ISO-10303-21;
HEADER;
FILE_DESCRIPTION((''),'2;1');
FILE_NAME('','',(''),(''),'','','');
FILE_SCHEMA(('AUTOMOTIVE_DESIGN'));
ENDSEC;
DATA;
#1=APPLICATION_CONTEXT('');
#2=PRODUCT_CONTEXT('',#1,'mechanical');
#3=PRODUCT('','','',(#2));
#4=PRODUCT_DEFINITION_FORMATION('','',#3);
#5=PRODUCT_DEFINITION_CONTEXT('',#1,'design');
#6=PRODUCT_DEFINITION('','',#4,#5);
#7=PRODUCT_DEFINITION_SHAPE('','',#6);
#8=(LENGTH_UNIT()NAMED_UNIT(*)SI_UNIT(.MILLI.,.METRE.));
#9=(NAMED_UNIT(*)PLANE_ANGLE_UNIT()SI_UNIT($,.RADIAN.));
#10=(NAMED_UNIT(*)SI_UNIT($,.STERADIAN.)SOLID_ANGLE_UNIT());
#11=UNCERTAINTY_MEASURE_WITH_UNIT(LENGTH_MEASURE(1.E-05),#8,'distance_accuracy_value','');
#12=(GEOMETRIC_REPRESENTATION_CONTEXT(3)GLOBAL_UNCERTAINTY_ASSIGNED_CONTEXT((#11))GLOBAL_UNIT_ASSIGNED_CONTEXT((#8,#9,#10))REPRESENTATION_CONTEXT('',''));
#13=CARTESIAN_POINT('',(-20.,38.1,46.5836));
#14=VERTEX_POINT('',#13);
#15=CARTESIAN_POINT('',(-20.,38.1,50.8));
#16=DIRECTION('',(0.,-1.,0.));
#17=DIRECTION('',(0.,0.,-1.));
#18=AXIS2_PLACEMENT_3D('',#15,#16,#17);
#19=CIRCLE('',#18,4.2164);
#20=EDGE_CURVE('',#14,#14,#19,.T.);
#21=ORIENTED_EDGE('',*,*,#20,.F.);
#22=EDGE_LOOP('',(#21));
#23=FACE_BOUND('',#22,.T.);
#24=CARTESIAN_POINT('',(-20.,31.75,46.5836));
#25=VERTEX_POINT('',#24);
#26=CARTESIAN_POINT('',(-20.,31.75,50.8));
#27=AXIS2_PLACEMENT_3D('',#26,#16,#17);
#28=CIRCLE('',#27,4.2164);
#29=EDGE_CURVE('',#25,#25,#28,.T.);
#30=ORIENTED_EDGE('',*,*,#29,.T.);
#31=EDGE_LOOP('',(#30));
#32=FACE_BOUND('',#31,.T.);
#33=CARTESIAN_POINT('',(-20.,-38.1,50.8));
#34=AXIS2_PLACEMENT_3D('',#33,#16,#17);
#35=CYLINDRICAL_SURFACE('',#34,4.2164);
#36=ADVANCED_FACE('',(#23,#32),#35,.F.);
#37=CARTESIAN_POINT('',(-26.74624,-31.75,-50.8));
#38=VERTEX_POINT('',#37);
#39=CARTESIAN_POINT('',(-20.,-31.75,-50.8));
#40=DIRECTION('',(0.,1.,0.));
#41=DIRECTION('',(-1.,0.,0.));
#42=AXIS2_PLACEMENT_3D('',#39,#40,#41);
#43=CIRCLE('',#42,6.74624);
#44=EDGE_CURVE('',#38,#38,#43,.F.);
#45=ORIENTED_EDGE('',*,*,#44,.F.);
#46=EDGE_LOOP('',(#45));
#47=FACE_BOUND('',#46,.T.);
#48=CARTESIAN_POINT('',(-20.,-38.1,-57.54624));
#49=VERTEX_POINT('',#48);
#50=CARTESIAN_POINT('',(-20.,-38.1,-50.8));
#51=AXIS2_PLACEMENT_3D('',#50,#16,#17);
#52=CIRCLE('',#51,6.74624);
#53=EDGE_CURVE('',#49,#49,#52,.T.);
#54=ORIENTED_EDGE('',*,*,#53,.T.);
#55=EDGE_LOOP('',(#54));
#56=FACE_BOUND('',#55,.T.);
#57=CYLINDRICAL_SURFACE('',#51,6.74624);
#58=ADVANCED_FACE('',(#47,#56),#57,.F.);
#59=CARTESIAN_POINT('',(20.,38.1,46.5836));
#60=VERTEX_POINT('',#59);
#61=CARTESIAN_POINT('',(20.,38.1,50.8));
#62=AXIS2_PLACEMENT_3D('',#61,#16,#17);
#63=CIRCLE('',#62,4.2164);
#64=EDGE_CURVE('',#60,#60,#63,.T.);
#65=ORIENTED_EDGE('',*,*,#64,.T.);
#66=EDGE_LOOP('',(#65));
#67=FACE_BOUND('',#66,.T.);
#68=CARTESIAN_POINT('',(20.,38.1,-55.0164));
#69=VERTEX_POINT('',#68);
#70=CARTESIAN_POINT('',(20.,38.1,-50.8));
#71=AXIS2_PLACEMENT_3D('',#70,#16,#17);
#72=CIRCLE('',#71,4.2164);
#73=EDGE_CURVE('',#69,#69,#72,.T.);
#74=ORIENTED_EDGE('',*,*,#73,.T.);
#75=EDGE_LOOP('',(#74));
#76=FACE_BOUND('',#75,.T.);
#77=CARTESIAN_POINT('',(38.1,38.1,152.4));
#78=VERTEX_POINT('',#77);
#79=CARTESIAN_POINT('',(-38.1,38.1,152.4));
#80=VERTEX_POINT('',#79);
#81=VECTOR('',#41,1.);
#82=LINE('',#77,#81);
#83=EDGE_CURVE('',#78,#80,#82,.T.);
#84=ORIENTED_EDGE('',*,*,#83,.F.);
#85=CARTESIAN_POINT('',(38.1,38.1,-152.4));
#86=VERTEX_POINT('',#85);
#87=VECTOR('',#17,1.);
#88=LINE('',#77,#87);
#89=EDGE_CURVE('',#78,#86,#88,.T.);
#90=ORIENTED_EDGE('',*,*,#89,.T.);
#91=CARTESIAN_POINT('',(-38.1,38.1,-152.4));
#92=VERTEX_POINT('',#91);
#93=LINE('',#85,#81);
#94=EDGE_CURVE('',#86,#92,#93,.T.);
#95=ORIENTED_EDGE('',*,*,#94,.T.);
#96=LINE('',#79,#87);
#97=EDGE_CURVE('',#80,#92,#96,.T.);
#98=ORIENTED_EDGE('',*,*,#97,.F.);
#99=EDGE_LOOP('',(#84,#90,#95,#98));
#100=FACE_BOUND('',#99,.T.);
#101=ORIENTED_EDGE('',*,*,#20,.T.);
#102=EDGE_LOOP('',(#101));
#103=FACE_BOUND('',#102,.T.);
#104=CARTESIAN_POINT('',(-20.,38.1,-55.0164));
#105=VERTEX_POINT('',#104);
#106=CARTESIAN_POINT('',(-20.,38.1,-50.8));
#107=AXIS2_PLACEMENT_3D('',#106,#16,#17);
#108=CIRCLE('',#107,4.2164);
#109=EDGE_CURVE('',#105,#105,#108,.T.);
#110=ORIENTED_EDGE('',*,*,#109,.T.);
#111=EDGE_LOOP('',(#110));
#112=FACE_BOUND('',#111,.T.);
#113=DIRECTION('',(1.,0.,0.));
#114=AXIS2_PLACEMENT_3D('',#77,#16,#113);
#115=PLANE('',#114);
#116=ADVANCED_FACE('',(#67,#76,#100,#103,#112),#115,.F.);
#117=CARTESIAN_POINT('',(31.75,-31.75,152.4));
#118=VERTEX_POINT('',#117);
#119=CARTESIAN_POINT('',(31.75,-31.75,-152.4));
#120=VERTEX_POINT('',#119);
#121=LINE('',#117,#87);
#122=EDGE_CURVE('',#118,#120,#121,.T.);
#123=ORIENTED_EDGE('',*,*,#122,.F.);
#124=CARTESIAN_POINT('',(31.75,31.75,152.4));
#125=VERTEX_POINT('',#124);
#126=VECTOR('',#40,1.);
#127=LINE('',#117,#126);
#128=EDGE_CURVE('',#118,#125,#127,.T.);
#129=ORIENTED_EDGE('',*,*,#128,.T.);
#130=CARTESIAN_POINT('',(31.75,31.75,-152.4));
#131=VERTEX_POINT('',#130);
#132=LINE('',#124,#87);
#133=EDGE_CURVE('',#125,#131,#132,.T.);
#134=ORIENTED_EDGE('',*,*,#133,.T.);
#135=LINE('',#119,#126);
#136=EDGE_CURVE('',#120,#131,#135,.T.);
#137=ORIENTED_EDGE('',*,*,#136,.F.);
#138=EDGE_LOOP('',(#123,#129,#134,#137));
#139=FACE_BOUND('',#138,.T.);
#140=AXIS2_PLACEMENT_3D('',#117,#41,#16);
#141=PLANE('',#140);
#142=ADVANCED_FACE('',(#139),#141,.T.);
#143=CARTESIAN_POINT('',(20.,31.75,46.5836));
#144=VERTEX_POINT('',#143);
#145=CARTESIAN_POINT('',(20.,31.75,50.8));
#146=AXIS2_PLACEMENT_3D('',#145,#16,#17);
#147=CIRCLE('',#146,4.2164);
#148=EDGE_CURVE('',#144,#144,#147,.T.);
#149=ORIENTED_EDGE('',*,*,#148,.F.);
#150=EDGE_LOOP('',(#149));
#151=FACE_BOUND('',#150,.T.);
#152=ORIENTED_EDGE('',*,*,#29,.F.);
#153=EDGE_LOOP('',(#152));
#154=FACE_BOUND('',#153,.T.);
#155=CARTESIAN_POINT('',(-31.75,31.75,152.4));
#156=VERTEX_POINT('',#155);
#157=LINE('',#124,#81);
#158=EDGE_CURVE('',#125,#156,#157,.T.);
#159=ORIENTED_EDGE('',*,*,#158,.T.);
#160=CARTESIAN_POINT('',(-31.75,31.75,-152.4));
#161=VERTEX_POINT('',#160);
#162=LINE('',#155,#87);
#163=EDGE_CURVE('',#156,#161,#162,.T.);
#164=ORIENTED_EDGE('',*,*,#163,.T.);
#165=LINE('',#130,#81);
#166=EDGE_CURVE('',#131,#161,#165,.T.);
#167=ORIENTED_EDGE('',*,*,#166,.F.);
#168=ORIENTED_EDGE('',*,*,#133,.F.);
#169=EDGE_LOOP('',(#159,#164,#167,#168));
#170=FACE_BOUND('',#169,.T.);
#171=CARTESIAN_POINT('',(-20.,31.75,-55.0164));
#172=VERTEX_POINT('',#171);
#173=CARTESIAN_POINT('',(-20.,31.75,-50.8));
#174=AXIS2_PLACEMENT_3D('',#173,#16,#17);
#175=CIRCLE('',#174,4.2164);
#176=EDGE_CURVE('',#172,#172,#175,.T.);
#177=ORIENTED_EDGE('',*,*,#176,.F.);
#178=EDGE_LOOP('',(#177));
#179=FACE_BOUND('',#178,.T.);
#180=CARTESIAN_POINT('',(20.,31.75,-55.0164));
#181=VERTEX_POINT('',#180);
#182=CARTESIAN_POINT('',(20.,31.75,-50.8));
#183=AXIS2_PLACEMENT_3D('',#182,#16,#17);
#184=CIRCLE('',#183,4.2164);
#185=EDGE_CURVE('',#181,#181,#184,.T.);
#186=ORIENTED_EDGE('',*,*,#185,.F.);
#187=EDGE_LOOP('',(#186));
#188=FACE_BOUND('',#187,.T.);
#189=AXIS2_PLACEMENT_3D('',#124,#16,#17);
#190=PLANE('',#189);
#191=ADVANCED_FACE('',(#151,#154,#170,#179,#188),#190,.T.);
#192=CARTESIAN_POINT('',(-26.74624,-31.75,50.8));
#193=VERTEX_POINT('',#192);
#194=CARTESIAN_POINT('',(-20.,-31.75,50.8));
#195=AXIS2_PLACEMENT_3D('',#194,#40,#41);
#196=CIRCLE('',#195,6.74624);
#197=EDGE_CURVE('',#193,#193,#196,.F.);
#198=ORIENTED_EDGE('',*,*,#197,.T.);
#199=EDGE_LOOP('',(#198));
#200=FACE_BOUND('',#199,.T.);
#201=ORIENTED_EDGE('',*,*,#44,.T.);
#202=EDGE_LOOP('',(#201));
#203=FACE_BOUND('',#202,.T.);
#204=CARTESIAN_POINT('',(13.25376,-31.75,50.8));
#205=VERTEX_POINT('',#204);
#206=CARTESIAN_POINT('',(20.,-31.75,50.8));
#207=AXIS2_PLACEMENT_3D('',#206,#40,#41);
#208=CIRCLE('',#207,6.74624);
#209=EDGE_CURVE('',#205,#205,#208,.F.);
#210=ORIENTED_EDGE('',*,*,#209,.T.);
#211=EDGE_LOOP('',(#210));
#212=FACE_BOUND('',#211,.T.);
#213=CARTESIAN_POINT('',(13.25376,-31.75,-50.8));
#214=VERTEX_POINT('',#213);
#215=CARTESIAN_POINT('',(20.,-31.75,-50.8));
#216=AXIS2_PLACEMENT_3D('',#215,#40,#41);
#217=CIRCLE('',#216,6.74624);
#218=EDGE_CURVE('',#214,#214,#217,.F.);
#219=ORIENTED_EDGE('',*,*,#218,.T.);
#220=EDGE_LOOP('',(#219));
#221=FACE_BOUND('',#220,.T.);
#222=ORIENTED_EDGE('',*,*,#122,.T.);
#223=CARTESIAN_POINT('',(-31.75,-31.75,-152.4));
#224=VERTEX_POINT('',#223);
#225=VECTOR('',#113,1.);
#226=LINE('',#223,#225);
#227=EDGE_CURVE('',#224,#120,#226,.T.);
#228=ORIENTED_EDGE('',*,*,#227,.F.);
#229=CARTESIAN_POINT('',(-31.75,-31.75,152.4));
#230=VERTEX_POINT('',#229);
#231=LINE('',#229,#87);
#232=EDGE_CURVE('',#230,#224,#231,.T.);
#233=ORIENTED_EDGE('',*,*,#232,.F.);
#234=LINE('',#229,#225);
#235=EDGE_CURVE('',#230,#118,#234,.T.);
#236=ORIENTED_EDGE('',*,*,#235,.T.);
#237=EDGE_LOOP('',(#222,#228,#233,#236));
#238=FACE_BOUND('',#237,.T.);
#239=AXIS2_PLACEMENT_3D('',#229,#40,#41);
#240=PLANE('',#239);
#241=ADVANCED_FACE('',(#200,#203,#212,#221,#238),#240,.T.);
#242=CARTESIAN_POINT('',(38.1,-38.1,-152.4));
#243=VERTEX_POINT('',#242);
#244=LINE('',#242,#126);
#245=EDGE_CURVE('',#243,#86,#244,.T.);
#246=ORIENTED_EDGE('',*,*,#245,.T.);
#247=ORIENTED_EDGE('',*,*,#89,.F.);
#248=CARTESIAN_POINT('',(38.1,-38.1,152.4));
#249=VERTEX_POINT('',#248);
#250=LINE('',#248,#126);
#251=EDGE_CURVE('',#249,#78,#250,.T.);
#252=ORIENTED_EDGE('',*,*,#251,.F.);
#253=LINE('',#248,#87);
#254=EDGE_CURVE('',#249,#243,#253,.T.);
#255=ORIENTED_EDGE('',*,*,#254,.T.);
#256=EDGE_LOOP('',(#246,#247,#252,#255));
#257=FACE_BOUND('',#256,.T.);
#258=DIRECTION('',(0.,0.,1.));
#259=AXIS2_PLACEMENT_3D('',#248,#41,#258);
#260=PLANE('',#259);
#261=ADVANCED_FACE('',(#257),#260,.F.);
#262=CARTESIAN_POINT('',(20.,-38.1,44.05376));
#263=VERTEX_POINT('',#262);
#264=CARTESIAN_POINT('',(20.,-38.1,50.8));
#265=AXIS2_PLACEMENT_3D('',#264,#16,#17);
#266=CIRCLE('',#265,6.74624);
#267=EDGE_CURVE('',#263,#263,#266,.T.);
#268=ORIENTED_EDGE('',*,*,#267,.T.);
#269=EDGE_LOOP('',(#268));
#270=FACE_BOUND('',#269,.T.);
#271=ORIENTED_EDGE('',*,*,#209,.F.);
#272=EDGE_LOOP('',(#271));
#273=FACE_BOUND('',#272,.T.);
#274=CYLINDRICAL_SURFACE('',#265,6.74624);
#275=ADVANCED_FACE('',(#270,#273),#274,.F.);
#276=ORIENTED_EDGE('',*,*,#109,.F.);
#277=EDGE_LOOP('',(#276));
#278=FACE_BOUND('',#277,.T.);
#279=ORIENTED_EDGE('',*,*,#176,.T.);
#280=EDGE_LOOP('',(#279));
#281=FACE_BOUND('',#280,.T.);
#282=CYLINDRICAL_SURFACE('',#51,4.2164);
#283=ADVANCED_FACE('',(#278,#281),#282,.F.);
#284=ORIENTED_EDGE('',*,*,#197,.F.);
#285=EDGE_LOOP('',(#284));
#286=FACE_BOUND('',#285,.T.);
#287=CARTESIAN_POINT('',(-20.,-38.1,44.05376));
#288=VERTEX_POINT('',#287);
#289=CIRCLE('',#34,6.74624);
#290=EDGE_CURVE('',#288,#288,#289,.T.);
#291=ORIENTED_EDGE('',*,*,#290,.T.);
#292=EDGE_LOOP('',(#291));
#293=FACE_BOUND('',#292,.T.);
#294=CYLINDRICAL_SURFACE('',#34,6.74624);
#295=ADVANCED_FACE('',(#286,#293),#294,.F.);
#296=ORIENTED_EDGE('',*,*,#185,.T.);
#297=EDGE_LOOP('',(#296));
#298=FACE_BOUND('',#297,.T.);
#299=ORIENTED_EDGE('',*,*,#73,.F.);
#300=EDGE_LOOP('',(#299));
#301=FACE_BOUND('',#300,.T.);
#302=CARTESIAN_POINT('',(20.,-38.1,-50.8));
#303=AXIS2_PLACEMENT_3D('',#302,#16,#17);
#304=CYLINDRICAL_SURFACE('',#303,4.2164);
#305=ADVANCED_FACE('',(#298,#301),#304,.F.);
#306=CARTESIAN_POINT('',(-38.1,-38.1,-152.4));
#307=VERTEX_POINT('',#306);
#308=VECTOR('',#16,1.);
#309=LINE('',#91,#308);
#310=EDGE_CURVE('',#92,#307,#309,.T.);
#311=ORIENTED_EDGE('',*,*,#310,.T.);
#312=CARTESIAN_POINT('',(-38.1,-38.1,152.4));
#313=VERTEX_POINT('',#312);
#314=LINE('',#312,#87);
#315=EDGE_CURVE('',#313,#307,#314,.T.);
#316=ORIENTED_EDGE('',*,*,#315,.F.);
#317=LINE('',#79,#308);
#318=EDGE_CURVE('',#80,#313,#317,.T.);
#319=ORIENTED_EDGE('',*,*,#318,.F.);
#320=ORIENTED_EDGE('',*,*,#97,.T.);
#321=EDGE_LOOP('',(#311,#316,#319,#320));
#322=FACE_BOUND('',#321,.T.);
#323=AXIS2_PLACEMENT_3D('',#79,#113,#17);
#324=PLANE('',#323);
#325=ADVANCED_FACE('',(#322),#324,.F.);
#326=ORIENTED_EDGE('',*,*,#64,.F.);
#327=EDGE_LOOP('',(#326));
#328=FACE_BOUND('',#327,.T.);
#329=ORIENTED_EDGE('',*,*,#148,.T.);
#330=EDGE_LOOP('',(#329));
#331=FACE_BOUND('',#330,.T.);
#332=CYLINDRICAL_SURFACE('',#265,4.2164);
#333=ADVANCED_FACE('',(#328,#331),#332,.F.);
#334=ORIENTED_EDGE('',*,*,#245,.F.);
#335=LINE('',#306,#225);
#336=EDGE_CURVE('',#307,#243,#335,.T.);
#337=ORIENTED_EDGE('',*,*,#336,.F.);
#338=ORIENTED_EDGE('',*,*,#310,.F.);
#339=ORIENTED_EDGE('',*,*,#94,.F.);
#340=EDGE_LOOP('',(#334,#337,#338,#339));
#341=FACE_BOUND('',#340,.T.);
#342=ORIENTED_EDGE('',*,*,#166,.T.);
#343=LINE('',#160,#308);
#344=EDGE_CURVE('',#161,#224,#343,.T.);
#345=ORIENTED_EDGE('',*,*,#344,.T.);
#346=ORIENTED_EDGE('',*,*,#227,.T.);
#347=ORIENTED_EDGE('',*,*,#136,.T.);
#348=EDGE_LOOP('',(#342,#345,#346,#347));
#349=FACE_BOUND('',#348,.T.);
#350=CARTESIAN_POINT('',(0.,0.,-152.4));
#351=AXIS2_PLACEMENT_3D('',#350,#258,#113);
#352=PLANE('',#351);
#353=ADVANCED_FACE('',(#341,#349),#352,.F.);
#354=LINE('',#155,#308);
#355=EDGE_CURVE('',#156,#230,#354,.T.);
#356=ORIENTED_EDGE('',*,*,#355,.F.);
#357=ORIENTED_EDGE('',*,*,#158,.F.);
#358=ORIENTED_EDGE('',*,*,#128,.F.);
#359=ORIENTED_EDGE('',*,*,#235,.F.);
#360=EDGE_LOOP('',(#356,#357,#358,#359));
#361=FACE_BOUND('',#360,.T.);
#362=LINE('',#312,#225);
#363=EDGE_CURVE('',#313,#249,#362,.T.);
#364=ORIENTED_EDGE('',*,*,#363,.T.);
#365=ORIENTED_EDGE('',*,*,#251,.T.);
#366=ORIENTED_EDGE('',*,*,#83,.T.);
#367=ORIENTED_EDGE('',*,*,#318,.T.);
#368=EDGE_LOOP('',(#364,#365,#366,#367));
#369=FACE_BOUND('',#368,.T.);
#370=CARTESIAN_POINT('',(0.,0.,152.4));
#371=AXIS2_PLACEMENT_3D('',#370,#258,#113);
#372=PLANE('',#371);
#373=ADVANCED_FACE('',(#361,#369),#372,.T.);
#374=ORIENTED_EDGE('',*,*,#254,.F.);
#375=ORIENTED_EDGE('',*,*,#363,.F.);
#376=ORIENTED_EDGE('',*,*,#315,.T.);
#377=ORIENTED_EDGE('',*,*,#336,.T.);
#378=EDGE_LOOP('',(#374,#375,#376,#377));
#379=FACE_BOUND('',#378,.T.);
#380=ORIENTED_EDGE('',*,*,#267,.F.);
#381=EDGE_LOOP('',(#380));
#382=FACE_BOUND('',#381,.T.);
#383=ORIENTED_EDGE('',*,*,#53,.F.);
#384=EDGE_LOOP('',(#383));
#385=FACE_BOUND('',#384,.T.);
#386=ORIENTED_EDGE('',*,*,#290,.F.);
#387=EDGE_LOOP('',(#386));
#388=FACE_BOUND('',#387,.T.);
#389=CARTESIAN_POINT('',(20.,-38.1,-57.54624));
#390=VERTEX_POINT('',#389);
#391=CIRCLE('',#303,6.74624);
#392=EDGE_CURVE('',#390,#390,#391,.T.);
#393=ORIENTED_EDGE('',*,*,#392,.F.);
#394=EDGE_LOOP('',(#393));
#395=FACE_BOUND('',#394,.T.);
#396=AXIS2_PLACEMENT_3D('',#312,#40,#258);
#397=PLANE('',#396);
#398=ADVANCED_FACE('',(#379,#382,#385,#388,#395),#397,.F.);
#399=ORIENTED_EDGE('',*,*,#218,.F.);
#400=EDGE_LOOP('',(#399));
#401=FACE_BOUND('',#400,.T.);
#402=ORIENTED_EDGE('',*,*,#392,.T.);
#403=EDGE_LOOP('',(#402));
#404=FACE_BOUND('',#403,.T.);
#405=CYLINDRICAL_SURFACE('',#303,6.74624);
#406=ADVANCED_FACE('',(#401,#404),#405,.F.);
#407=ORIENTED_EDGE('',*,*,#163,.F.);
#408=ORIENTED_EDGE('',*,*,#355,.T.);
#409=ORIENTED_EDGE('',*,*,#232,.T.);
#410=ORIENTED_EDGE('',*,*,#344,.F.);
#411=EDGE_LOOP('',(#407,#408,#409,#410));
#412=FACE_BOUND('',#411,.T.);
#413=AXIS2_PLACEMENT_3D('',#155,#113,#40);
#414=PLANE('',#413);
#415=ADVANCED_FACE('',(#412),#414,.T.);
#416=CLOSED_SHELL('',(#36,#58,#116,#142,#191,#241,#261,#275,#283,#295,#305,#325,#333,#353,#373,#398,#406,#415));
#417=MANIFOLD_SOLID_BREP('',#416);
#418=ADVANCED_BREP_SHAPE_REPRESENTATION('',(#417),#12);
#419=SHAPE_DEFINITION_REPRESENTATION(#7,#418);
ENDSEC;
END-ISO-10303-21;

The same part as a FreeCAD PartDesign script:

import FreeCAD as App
import Part
import Sketcher
Q = App.Units.Quantity

doc = App.newDocument("Part")
body = doc.addObject("PartDesign::Body", "Body")

# Sketch on XY plane
sketch1 = body.newObject("Sketcher::SketchObject", "Sketch")
sketch1.AttachmentSupport = (doc.getObject("XY_Plane"), [""])
sketch1.MapMode = "FlatFace"
sketch1.addGeometry([
    Part.LineSegment(App.Vector(-38, 38, 0), App.Vector(-38, -38, 0)),  # 0
    Part.LineSegment(App.Vector(-38, -38, 0), App.Vector(38, -38, 0)),  # 1
    Part.LineSegment(App.Vector(38, -38, 0), App.Vector(38, 38, 0)),  # 2
    Part.LineSegment(App.Vector(38, 38, 0), App.Vector(-38, 38, 0)),  # 3
    Part.LineSegment(App.Vector(32, -32, 0), App.Vector(-32, -32, 0)),  # 4
    Part.LineSegment(App.Vector(-32, -32, 0), App.Vector(-32, 32, 0)),  # 5
    Part.LineSegment(App.Vector(-32, 32, 0), App.Vector(32, 32, 0)),  # 6
    Part.LineSegment(App.Vector(32, 32, 0), App.Vector(32, -32, 0)),  # 7
], False)
sketch1.addConstraint([
    Sketcher.Constraint("Coincident", 0, 2, 1, 1),
    Sketcher.Constraint("Coincident", 1, 2, 2, 1),
    Sketcher.Constraint("Coincident", 2, 2, 3, 1),
    Sketcher.Constraint("Coincident", 3, 2, 0, 1),
    Sketcher.Constraint("Coincident", 4, 2, 5, 1),
    Sketcher.Constraint("Coincident", 5, 2, 6, 1),
    Sketcher.Constraint("Coincident", 6, 2, 7, 1),
    Sketcher.Constraint("Coincident", 7, 2, 4, 1),
    Sketcher.Constraint("Vertical", 0),
    Sketcher.Constraint("Horizontal", 1),
    Sketcher.Constraint("Vertical", 2),
    Sketcher.Constraint("Horizontal", 3),
    Sketcher.Constraint("Horizontal", 4),
    Sketcher.Constraint("Vertical", 5),
    Sketcher.Constraint("Horizontal", 6),
    Sketcher.Constraint("Vertical", 7),
    Sketcher.Constraint("Symmetric", 0, 2, 2, 2, -1, 1),
    Sketcher.Constraint("Symmetric", 4, 2, 6, 2, -1, 1),
    Sketcher.Constraint("Equal", 3, 0),
    Sketcher.Constraint("Equal", 6, 5),
    Sketcher.Constraint("DistanceX", 1, 1, 1, 2, Q("3 in")),
    Sketcher.Constraint("DistanceX", 4, 2, 4, 1, Q("2.5 in")),
])
pad1 = body.newObject("PartDesign::Pad", "Pad")
pad1.Profile = sketch1
pad1.Type = "TwoLengths"
pad1.Length = Q("6 in")
pad1.Length2 = Q("6 in")

# Sketch on XZ plane
sketch2 = body.newObject("Sketcher::SketchObject", "Sketch001")
sketch2.AttachmentSupport = (doc.getObject("XZ_Plane"), [""])
sketch2.MapMode = "FlatFace"
sketch2.AttachmentOffset = App.Placement(App.Vector(0, 0, 1.5 * 25.4), App.Rotation())
sketch2.addGeometry([
    Part.Circle(App.Vector(-20, -50.8, 0), App.Vector(0, 0, 1), 4.2),
    Part.Circle(App.Vector(20, 50.8, 0), App.Vector(0, 0, 1), 4.2),
    Part.Circle(App.Vector(20, -50.8, 0), App.Vector(0, 0, 1), 4.2),
    Part.Circle(App.Vector(-20, 50.8, 0), App.Vector(0, 0, 1), 4.2),
], False)
sketch2.addConstraint([
    Sketcher.Constraint("Equal", 0, 1),
    Sketcher.Constraint("Equal", 1, 2),
    Sketcher.Constraint("Equal", 2, 3),
    Sketcher.Constraint("Symmetric", 0, 3, 1, 3, -1, 1),
    Sketcher.Constraint("Symmetric", 2, 3, 3, 3, -1, 1),
    Sketcher.Constraint("Symmetric", 0, 3, 2, 3, -2),
    Sketcher.Constraint("Diameter", 0, Q("0.332 in")),
    Sketcher.Constraint("DistanceY", 0, 3, -1, 1, Q("2 in")),
    Sketcher.Constraint("DistanceX", 0, 3, -1, 1, 20.0),
])
doc.recompute()
hole = body.newObject("PartDesign::Hole", "Hole")
hole.Profile = sketch2
hole.ThreadType = "None"
hole.Diameter = Q("0.332 in")
hole.DepthType = "ThroughAll"

# Sketch on XZ plane
sketch3 = body.newObject("Sketcher::SketchObject", "Sketch002")
sketch3.AttachmentSupport = (doc.getObject("XZ_Plane"), [""])
sketch3.MapMode = "FlatFace"
sketch3.AttachmentOffset = App.Placement(App.Vector(0, 0, 1.5 * 25.4), App.Rotation())
sketch3.addGeometry([
    Part.Circle(App.Vector(20, -51, 0), App.Vector(0, 0, 1), 7),
    Part.Circle(App.Vector(-20, -51, 0), App.Vector(0, 0, 1), 7),
    Part.Circle(App.Vector(20, 51, 0), App.Vector(0, 0, 1), 7),
    Part.Circle(App.Vector(-20, 51, 0), App.Vector(0, 0, 1), 7),
], False)
sketch3.addConstraint([
    Sketcher.Constraint("Equal", 0, 1),
    Sketcher.Constraint("Equal", 1, 2),
    Sketcher.Constraint("Equal", 2, 3),
    Sketcher.Constraint("Symmetric", 1, 3, 2, 3, -1, 1),
    Sketcher.Constraint("Symmetric", 0, 3, 3, 3, -1, 1),
    Sketcher.Constraint("Symmetric", 0, 3, 1, 3, -2),
    Sketcher.Constraint("DistanceY", 0, 3, -1, 1, Q("2 in")),
    Sketcher.Constraint("Diameter", 0, Q("0.5312 in")),
    Sketcher.Constraint("DistanceX", -1, 1, 0, 3, 20.0),
])
doc.recompute()
hole2 = body.newObject("PartDesign::Hole", "Hole001")
hole2.Profile = sketch3
hole2.ThreadType = "None"
hole2.Diameter = Q("0.5312 in")
hole2.DepthType = "Dimension"
hole2.Depth = Q("0.25 in")
hole2.DrillPoint = "Angled"
hole2.DrillPointAngle = 118

doc.recompute()
